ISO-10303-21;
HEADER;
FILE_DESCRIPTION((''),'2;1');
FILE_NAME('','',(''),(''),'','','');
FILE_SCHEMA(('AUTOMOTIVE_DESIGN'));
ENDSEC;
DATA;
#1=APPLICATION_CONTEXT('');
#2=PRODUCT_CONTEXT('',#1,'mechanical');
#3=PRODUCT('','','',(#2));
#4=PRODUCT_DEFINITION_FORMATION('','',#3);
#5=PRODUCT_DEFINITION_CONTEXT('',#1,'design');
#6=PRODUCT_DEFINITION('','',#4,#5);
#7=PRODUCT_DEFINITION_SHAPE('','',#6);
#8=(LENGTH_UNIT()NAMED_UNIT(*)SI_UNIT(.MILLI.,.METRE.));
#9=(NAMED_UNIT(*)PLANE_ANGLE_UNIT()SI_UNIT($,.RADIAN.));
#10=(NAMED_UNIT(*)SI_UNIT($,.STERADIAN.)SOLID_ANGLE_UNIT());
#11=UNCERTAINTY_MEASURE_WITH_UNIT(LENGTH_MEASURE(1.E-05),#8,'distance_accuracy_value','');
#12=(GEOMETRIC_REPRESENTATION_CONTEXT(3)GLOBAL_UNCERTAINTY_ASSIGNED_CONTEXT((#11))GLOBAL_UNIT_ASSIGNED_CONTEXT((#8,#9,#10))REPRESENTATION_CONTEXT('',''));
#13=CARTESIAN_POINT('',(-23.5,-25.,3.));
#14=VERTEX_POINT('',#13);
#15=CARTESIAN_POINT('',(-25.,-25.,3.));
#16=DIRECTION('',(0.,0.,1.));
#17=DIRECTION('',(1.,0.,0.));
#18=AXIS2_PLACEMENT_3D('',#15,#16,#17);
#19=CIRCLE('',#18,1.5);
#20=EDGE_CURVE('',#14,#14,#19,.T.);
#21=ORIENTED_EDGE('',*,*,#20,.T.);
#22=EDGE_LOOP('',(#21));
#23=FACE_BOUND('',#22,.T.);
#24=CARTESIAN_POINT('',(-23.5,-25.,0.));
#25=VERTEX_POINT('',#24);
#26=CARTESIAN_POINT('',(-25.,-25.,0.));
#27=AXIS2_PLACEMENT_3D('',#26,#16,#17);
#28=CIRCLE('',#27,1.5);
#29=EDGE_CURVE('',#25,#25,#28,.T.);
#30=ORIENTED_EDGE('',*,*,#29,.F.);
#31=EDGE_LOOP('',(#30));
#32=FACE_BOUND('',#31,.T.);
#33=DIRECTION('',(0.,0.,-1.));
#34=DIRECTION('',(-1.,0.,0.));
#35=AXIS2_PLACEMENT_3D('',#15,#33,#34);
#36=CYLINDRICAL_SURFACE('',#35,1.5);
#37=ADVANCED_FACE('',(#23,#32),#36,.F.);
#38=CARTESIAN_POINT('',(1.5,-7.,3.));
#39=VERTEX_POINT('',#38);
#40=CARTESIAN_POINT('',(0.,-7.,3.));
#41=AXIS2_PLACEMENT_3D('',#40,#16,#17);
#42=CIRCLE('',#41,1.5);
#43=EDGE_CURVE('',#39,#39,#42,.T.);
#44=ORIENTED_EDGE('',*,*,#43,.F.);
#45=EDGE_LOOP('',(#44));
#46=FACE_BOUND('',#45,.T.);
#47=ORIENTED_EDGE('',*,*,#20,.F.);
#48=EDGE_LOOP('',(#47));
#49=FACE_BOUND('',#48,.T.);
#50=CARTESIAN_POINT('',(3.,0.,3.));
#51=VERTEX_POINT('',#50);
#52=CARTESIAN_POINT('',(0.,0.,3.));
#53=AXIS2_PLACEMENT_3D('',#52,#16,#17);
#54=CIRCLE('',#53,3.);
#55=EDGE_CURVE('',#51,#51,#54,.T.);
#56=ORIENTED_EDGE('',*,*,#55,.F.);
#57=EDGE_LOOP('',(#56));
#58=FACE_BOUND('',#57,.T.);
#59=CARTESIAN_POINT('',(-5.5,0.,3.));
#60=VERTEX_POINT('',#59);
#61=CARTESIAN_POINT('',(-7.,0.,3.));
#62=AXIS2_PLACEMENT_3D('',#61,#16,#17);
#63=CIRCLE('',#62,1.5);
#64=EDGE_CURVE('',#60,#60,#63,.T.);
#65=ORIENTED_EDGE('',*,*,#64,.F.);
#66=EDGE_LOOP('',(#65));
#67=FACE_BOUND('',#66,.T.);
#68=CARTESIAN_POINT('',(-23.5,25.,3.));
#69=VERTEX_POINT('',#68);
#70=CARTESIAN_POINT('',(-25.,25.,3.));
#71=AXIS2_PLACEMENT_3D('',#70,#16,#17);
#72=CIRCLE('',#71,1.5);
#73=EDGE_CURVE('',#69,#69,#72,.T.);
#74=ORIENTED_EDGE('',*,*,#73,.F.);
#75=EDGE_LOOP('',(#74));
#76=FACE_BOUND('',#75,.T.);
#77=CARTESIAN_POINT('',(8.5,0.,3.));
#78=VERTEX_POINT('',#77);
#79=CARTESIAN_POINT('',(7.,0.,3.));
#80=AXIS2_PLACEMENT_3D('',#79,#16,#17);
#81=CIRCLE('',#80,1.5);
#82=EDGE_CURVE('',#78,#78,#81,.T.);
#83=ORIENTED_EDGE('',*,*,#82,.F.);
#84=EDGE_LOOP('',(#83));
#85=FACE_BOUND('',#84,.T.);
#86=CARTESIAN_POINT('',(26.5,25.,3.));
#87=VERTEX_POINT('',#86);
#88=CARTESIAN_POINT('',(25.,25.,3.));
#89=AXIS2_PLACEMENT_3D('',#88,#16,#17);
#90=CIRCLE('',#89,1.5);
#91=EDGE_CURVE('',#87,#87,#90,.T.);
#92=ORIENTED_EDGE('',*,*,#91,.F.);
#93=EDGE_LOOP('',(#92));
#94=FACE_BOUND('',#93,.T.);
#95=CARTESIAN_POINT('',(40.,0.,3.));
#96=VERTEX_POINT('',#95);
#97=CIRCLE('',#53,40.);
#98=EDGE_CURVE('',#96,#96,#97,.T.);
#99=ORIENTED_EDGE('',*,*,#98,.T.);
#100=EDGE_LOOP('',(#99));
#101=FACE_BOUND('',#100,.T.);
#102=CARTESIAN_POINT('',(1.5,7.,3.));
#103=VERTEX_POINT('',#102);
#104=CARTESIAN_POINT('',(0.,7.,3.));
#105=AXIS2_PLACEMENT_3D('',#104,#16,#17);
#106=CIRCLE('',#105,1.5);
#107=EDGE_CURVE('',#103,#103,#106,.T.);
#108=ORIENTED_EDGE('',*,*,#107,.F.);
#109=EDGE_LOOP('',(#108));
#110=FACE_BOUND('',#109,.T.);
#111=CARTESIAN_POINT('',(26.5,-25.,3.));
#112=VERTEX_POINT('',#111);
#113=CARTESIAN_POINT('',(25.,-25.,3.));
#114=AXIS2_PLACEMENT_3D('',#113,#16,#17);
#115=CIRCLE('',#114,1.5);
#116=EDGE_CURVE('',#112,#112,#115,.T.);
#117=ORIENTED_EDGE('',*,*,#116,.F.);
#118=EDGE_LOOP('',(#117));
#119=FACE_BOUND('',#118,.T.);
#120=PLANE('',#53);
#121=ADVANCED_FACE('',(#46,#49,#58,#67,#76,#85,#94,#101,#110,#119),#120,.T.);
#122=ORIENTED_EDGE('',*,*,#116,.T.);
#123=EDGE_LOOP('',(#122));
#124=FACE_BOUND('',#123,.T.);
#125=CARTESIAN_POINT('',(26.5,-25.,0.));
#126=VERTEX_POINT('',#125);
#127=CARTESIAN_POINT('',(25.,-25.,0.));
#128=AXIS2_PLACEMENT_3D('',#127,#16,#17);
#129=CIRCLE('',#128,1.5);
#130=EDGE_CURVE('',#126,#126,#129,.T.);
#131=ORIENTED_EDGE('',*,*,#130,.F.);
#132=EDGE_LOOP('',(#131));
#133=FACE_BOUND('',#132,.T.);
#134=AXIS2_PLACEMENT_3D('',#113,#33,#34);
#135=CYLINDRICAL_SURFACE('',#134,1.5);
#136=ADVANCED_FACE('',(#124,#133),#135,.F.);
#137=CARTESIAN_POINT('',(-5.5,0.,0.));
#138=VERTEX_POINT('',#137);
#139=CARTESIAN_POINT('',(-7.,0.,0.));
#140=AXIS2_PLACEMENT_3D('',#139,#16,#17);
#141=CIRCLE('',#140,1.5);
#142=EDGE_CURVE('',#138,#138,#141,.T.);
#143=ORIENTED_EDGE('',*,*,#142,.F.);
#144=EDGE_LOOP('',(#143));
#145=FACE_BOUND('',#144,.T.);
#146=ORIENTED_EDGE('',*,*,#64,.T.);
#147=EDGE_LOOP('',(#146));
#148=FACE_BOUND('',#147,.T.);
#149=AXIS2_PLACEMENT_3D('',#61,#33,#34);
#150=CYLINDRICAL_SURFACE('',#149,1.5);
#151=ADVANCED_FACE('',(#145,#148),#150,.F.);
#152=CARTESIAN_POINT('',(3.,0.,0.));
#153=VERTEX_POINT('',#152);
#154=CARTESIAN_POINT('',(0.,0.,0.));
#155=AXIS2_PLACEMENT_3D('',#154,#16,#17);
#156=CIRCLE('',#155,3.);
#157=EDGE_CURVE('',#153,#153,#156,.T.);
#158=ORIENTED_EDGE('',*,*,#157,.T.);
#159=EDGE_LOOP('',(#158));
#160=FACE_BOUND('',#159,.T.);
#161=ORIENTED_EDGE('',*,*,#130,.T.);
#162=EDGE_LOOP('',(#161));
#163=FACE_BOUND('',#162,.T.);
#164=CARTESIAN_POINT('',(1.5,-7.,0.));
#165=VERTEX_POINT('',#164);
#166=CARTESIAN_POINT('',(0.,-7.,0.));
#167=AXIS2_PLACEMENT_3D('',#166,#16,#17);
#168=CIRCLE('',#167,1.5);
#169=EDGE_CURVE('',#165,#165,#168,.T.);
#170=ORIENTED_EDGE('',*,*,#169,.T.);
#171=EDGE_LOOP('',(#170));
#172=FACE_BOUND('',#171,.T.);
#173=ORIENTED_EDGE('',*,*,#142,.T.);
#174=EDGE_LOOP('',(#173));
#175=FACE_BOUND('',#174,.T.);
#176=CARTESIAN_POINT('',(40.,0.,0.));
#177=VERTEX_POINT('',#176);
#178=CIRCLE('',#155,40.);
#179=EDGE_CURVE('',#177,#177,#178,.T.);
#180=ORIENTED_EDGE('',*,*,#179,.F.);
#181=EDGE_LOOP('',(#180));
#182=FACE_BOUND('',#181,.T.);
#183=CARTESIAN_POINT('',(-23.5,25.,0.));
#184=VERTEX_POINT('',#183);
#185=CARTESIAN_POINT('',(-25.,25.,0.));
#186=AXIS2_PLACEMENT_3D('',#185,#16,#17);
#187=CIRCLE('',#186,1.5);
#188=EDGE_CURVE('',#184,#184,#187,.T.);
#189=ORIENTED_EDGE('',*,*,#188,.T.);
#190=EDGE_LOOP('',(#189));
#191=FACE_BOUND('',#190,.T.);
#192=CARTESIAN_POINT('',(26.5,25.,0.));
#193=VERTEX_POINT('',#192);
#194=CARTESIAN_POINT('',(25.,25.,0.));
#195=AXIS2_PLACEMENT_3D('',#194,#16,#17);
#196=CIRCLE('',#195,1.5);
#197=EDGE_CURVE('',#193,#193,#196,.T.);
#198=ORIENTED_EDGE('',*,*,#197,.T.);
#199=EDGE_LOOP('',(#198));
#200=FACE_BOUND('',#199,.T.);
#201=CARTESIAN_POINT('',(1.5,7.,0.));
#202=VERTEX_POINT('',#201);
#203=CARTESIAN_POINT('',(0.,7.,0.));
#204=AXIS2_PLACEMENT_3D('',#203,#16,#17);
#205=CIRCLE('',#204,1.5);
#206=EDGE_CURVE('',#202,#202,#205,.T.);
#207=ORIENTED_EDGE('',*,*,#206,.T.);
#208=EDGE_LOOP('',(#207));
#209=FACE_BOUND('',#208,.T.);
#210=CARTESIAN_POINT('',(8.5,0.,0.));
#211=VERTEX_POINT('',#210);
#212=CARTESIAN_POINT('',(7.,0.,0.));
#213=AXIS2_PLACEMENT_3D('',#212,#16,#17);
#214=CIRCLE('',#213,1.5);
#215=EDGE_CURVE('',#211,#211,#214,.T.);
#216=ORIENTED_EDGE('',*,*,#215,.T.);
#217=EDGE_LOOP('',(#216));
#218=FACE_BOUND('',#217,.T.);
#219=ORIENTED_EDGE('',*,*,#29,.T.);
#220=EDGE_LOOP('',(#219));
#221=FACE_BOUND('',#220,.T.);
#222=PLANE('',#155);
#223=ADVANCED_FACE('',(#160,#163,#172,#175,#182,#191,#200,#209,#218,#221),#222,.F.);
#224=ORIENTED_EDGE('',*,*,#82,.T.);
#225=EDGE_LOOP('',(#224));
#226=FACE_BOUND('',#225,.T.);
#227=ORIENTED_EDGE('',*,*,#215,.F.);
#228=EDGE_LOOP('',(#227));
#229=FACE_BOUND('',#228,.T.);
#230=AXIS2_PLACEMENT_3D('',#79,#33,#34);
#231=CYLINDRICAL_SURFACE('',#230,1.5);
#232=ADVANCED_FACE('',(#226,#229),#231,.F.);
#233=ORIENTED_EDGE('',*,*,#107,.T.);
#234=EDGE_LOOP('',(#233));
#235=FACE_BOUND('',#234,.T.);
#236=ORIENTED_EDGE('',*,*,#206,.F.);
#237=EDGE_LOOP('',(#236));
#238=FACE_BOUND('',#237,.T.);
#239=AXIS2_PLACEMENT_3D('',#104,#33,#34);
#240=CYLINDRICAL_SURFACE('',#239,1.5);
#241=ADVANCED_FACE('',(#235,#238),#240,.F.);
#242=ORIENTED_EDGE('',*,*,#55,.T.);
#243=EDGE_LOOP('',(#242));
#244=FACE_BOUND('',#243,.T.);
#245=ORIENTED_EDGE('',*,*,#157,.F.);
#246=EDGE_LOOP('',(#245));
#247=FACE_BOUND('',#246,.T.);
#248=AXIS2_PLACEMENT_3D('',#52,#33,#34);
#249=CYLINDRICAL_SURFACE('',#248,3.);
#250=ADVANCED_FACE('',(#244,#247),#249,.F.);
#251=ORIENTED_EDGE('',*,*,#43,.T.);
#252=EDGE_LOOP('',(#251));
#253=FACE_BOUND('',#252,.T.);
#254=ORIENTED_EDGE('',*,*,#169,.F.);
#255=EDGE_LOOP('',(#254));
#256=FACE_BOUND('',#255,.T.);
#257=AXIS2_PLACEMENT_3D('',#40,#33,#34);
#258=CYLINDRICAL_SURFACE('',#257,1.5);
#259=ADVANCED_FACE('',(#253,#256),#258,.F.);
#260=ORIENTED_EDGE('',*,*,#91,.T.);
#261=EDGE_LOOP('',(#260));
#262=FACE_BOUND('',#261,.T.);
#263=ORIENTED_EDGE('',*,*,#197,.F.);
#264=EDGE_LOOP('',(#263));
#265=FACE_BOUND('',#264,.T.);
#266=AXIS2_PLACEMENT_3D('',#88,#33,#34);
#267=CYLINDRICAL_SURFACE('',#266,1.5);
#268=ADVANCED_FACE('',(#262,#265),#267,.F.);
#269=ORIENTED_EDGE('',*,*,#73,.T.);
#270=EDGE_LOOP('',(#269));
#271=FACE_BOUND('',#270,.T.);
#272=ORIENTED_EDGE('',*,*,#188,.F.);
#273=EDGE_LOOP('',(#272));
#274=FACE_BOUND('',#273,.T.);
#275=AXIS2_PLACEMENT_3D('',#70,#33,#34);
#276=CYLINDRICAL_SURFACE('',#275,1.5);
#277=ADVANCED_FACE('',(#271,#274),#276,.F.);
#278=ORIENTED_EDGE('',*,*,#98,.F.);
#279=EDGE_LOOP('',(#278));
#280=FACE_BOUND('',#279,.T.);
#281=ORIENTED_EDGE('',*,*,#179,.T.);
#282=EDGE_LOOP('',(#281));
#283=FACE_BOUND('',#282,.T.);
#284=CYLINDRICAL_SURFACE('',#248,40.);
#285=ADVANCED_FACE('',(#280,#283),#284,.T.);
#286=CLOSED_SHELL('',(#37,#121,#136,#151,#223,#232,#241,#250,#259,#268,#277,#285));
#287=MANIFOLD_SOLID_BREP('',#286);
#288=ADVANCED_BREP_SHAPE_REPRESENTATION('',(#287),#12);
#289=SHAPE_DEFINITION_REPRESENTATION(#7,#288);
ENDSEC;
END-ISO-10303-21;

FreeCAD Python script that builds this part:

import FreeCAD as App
import Part
import Sketcher

V = App.Vector
Q = App.Units.Quantity

doc = App.newDocument("Part")
body = doc.addObject("PartDesign::Body", "Body")

# Sketch on XY plane
sketch1 = doc.addObject("Sketcher::SketchObject", "Sketch")
body.addObject(sketch1)
sketch1.AttachmentSupport = (doc.XY_Plane, [""])
sketch1.MapMode = "FlatFace"
sketch1.addGeometry([
    Part.Circle(V(0, 0, 0), V(0, 0, 1), 40),  # 0
    Part.Circle(V(-25, -25, 0), V(0, 0, 1), 1.5),  # 1
    Part.Circle(V(25, -25, 0), V(0, 0, 1), 1.5),  # 2
    Part.Circle(V(0, -7, 0), V(0, 0, 1), 1.5),  # 3
    Part.Circle(V(-7, 0, 0), V(0, 0, 1), 1.5),  # 4
    Part.Circle(V(-25, 25, 0), V(0, 0, 1), 1.5),  # 5
    Part.Circle(V(0, 0, 0), V(0, 0, 1), 3),  # 6
    Part.Circle(V(7, 0, 0), V(0, 0, 1), 1.5),  # 7
    Part.Circle(V(0, 7, 0), V(0, 0, 1), 1.5),  # 8
    Part.Circle(V(25, 25, 0), V(0, 0, 1), 1.5),  # 9
], False)
sketch1.addConstraint([
    Sketcher.Constraint("Coincident", 0, 3, -1, 1),
    Sketcher.Constraint("Coincident", 6, 3, -1, 1),
    Sketcher.Constraint("Equal", 1, 2),
    Sketcher.Constraint("Equal", 2, 3),
    Sketcher.Constraint("Equal", 3, 4),
    Sketcher.Constraint("Equal", 4, 5),
    Sketcher.Constraint("Equal", 5, 7),
    Sketcher.Constraint("Equal", 7, 8),
    Sketcher.Constraint("Equal", 8, 9),
    Sketcher.Constraint("Symmetric", 2, 3, 5, 3, -1, 1),
    Sketcher.Constraint("Symmetric", 4, 3, 7, 3, -1, 1),
    Sketcher.Constraint("Symmetric", 3, 3, 8, 3, -1, 1),
    Sketcher.Constraint("Symmetric", 1, 3, 9, 3, -1, 1),
    Sketcher.Constraint("Symmetric", 1, 3, 2, 3, -2),
    Sketcher.Constraint("PointOnObject", 3, 3, -2),
    Sketcher.Constraint("PointOnObject", 4, 3, -1),
    Sketcher.Constraint("Diameter", 0, Q("80 mm")),
    Sketcher.Constraint("Diameter", 1, Q("3 mm")),
    Sketcher.Constraint("Diameter", 6, Q("6 mm")),
    Sketcher.Constraint("DistanceX", 1, 3, -1, 1, Q("25 mm")),
    Sketcher.Constraint("DistanceY", 1, 3, -1, 1, Q("25 mm")),
    Sketcher.Constraint("DistanceY", 3, 3, -1, 1, Q("7 mm")),
    Sketcher.Constraint("DistanceX", 4, 3, -1, 1, Q("7 mm")),
])
pad1 = doc.addObject("PartDesign::Pad", "Pad")
body.addObject(pad1)
pad1.Profile = sketch1
pad1.Length = 3

doc.recompute()
